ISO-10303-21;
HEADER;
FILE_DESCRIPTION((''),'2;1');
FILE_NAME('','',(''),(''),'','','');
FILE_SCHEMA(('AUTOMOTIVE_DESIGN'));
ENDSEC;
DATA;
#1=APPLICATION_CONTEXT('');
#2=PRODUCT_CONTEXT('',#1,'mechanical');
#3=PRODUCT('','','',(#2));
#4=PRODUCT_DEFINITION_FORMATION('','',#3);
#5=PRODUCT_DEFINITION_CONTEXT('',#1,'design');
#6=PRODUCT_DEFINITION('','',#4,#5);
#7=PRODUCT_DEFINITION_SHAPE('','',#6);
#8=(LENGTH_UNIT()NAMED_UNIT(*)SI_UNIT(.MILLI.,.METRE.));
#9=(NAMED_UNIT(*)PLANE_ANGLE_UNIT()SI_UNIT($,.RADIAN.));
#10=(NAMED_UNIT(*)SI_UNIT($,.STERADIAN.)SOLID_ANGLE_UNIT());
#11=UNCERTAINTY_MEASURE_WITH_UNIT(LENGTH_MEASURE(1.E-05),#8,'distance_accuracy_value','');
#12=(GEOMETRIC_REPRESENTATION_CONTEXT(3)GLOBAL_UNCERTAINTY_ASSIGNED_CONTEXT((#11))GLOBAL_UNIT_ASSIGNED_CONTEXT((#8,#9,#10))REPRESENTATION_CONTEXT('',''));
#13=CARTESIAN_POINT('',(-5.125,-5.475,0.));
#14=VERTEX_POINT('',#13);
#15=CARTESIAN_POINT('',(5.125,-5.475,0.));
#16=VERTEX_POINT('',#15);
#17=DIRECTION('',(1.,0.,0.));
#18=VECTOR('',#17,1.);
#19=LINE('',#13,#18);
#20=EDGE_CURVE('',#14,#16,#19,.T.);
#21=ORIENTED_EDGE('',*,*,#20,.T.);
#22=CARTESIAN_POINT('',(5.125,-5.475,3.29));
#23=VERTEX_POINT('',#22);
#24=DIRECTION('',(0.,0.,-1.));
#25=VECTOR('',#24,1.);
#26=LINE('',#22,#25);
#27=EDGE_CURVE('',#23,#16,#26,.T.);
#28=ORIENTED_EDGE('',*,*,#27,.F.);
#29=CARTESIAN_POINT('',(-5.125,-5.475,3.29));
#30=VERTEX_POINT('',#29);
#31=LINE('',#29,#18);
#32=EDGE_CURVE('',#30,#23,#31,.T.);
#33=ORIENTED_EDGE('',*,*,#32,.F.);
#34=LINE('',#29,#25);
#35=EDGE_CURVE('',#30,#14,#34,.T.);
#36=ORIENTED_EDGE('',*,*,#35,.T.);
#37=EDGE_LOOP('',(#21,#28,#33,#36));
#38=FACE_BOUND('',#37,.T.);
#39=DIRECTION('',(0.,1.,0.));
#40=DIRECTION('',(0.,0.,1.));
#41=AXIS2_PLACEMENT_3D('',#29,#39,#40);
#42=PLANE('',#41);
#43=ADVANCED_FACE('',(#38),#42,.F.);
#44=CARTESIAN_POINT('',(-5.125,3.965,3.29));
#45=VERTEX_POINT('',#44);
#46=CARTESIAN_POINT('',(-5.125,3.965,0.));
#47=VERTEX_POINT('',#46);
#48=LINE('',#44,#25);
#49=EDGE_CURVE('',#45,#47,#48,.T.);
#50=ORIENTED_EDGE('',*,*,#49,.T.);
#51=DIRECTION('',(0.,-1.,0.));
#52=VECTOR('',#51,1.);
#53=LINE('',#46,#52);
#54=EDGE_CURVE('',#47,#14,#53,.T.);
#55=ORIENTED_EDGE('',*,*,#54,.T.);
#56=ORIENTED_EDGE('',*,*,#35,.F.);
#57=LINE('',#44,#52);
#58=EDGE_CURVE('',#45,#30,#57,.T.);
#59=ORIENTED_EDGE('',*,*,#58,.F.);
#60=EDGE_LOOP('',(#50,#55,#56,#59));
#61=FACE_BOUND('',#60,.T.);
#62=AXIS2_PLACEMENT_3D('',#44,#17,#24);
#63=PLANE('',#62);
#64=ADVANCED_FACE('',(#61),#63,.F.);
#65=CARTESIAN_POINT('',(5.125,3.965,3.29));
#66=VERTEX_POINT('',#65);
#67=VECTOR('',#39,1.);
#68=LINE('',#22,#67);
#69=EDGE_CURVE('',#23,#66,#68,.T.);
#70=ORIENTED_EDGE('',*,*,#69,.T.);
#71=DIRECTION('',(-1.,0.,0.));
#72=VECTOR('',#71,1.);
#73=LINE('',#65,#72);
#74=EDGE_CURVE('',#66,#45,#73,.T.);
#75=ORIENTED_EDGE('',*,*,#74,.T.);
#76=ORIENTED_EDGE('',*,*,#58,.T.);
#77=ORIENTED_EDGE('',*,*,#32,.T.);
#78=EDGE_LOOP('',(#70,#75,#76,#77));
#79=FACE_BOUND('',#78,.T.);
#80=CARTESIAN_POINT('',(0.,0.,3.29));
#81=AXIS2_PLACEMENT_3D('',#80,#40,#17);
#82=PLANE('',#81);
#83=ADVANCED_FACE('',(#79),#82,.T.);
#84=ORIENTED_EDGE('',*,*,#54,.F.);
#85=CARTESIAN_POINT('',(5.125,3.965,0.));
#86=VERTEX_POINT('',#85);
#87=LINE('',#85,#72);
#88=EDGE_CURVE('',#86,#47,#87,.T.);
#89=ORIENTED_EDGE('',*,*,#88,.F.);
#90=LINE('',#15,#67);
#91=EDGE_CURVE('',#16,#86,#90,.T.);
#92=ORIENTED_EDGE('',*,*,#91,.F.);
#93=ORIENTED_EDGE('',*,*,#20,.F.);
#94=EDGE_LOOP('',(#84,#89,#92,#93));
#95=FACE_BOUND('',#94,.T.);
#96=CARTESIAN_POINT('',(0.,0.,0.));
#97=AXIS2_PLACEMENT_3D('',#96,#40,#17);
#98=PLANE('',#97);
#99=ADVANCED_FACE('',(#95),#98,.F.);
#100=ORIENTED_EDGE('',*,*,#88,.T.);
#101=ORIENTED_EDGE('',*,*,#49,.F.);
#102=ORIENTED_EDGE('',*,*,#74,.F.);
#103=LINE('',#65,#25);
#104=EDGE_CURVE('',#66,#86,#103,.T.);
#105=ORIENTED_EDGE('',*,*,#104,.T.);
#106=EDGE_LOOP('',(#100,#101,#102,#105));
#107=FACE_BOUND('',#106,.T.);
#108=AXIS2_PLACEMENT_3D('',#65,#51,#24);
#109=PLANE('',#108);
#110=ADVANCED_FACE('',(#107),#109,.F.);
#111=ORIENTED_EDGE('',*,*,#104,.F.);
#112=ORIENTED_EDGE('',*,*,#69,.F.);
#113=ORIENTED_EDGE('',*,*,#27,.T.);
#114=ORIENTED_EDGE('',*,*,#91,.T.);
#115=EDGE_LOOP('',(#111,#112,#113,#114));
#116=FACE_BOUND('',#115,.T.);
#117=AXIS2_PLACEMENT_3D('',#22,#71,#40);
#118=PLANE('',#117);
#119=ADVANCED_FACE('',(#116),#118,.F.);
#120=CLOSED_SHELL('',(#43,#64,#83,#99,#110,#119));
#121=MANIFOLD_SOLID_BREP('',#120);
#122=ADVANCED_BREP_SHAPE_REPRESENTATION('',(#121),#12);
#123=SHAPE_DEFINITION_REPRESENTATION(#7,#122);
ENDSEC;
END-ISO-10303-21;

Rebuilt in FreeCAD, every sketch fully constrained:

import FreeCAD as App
import Part
import Sketcher

V = App.Vector
Q = App.Units.Quantity

doc = App.newDocument("Part")
params = doc.addObject("Spreadsheet::Sheet", "Params")
for row, (alias, value) in enumerate([
    ("sketch1_width", "10.25 mm"),
    ("sketch1_height", "9.44 mm"),
    ("pad1_length", "3.29 mm"),
], start=1):
    params.set(f"A{row}", alias)
    params.set(f"B{row}", "=" + value)
    params.setAlias(f"B{row}", alias)

body = doc.addObject("PartDesign::Body", "Body")

sketch1 = body.newObject("Sketcher::SketchObject", "Sketch")
sketch1.AttachmentSupport = (doc.getObject("XY_Plane"), [""])
sketch1.MapMode = "FlatFace"
sketch1.addGeometry([
    Part.LineSegment(V(-5, 4, 0), V(-5, -5, 0)),
    Part.LineSegment(V(-5, -5, 0), V(5, -5, 0)),
    Part.LineSegment(V(5, -5, 0), V(5, 4, 0)),
    Part.LineSegment(V(5, 4, 0), V(-5, 4, 0)),
], False)
sketch1.addConstraint([
    Sketcher.Constraint("Coincident", 0, 2, 1, 1),
    Sketcher.Constraint("Coincident", 1, 2, 2, 1),
    Sketcher.Constraint("Coincident", 2, 2, 3, 1),
    Sketcher.Constraint("Coincident", 3, 2, 0, 1),
    Sketcher.Constraint("Vertical", 0),
    Sketcher.Constraint("Horizontal", 1),
    Sketcher.Constraint("Vertical", 2),
    Sketcher.Constraint("Horizontal", 3),
    Sketcher.Constraint("DistanceX", 1, 1, 1, 2, Q("10.25 mm")),
    Sketcher.Constraint("DistanceY", 0, 2, 0, 1, Q("9.44 mm")),
    Sketcher.Constraint("DistanceX", 0, 2, -1, 1, Q("5.125 mm")),
    Sketcher.Constraint("DistanceY", 0, 2, -1, 1, Q("5.475 mm")),
])
sketch1.setExpression("Constraints[8]", "Params.sketch1_width")
sketch1.setExpression("Constraints[9]", "Params.sketch1_height")
pad1 = body.newObject("PartDesign::Pad", "Pad")
pad1.Profile = sketch1
pad1.setExpression("Length", "Params.pad1_length")

doc.recompute()
